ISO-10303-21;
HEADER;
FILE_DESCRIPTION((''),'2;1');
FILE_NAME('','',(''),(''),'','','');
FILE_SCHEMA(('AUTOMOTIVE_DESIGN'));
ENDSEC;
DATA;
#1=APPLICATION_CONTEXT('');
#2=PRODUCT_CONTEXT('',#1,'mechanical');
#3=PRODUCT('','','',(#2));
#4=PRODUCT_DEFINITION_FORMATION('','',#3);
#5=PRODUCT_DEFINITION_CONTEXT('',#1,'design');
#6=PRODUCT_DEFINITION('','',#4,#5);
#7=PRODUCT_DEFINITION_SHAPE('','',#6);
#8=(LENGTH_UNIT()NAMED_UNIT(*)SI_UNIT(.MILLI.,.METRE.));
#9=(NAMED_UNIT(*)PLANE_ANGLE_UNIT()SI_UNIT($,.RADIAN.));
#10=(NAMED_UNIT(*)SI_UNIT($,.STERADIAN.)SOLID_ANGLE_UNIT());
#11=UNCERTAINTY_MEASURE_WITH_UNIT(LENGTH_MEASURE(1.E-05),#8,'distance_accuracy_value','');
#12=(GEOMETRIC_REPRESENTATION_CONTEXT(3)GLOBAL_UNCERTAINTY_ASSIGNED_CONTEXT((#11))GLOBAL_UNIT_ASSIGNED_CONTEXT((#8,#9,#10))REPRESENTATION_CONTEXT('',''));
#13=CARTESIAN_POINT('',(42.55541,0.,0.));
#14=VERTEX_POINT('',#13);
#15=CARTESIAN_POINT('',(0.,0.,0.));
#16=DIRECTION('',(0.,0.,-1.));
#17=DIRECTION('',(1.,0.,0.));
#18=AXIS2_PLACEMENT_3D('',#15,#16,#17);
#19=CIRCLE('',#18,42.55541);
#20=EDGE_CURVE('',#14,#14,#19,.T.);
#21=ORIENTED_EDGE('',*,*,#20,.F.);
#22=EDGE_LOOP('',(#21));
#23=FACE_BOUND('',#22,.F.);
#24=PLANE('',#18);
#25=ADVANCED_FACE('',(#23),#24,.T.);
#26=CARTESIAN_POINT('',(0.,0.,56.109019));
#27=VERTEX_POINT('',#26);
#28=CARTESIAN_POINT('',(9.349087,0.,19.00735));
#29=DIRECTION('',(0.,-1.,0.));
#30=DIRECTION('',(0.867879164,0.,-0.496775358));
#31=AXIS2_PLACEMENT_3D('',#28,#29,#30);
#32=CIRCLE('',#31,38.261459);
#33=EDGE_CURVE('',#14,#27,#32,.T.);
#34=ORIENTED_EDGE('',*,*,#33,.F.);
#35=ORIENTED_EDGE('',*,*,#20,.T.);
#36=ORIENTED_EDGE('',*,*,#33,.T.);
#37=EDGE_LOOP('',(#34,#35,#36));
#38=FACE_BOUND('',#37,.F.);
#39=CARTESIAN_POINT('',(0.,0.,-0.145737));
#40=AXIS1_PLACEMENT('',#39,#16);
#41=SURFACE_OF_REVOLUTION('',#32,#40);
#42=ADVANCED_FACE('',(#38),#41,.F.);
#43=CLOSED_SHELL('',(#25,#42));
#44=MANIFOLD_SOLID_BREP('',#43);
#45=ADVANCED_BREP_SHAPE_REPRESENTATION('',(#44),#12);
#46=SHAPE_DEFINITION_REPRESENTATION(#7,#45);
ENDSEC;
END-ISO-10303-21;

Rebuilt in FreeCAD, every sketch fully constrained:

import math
import FreeCAD as App
import Part
import Sketcher
from FreeCAD import Vector
Q = App.Units.Quantity

doc = App.newDocument("Part")
params = doc.addObject("Spreadsheet::Sheet", "Params")
for row, (alias, value) in enumerate([
    ("revolution_angle", "360 deg"),
], start=1):
    params.set(f"A{row}", alias)
    params.set(f"B{row}", "=" + value)
    params.setAlias(f"B{row}", alias)

body = doc.addObject("PartDesign::Body", "Body")

# Sketch on XZ plane
sketch1 = body.newObject("Sketcher::SketchObject", "Sketch")
sketch1.AttachmentSupport = (doc.getObject("XZ_Plane"), [""])
sketch1.MapMode = "FlatFace"
sketch1.addGeometry([
    Part.ArcOfCircle(Part.Circle(Vector(9, 19, 0), Vector(0, 0, 1), 38), math.radians(-30), math.radians(104)),
    Part.LineSegment(Vector(0, 56, 0), Vector(0, 0, 0)),
    Part.LineSegment(Vector(0, 0, 0), Vector(43, 0, 0)),
], False)
sketch1.addConstraint([
    Sketcher.Constraint("Coincident", 0, 2, 1, 1),
    Sketcher.Constraint("Coincident", 1, 2, 2, 1),
    Sketcher.Constraint("Coincident", 2, 2, 0, 1),
    Sketcher.Constraint("Vertical", 1),
    Sketcher.Constraint("Horizontal", 2),
    Sketcher.Constraint("Coincident", 1, 2, -1, 1),
    Sketcher.Constraint("Radius", 0, Q("38.261459 mm")),
    Sketcher.Constraint("DistanceX", 2, 1, 2, 2, Q("42.55541 mm")),
    Sketcher.Constraint("DistanceY", 1, 2, 1, 1, Q("56.109019 mm")),
])
revolution = body.newObject("PartDesign::Revolution", "Revolution")
revolution.Profile = sketch1
revolution.ReferenceAxis = (sketch1, ["V_Axis"])
revolution.setExpression("Angle", "Params.revolution_angle")

doc.recompute()
